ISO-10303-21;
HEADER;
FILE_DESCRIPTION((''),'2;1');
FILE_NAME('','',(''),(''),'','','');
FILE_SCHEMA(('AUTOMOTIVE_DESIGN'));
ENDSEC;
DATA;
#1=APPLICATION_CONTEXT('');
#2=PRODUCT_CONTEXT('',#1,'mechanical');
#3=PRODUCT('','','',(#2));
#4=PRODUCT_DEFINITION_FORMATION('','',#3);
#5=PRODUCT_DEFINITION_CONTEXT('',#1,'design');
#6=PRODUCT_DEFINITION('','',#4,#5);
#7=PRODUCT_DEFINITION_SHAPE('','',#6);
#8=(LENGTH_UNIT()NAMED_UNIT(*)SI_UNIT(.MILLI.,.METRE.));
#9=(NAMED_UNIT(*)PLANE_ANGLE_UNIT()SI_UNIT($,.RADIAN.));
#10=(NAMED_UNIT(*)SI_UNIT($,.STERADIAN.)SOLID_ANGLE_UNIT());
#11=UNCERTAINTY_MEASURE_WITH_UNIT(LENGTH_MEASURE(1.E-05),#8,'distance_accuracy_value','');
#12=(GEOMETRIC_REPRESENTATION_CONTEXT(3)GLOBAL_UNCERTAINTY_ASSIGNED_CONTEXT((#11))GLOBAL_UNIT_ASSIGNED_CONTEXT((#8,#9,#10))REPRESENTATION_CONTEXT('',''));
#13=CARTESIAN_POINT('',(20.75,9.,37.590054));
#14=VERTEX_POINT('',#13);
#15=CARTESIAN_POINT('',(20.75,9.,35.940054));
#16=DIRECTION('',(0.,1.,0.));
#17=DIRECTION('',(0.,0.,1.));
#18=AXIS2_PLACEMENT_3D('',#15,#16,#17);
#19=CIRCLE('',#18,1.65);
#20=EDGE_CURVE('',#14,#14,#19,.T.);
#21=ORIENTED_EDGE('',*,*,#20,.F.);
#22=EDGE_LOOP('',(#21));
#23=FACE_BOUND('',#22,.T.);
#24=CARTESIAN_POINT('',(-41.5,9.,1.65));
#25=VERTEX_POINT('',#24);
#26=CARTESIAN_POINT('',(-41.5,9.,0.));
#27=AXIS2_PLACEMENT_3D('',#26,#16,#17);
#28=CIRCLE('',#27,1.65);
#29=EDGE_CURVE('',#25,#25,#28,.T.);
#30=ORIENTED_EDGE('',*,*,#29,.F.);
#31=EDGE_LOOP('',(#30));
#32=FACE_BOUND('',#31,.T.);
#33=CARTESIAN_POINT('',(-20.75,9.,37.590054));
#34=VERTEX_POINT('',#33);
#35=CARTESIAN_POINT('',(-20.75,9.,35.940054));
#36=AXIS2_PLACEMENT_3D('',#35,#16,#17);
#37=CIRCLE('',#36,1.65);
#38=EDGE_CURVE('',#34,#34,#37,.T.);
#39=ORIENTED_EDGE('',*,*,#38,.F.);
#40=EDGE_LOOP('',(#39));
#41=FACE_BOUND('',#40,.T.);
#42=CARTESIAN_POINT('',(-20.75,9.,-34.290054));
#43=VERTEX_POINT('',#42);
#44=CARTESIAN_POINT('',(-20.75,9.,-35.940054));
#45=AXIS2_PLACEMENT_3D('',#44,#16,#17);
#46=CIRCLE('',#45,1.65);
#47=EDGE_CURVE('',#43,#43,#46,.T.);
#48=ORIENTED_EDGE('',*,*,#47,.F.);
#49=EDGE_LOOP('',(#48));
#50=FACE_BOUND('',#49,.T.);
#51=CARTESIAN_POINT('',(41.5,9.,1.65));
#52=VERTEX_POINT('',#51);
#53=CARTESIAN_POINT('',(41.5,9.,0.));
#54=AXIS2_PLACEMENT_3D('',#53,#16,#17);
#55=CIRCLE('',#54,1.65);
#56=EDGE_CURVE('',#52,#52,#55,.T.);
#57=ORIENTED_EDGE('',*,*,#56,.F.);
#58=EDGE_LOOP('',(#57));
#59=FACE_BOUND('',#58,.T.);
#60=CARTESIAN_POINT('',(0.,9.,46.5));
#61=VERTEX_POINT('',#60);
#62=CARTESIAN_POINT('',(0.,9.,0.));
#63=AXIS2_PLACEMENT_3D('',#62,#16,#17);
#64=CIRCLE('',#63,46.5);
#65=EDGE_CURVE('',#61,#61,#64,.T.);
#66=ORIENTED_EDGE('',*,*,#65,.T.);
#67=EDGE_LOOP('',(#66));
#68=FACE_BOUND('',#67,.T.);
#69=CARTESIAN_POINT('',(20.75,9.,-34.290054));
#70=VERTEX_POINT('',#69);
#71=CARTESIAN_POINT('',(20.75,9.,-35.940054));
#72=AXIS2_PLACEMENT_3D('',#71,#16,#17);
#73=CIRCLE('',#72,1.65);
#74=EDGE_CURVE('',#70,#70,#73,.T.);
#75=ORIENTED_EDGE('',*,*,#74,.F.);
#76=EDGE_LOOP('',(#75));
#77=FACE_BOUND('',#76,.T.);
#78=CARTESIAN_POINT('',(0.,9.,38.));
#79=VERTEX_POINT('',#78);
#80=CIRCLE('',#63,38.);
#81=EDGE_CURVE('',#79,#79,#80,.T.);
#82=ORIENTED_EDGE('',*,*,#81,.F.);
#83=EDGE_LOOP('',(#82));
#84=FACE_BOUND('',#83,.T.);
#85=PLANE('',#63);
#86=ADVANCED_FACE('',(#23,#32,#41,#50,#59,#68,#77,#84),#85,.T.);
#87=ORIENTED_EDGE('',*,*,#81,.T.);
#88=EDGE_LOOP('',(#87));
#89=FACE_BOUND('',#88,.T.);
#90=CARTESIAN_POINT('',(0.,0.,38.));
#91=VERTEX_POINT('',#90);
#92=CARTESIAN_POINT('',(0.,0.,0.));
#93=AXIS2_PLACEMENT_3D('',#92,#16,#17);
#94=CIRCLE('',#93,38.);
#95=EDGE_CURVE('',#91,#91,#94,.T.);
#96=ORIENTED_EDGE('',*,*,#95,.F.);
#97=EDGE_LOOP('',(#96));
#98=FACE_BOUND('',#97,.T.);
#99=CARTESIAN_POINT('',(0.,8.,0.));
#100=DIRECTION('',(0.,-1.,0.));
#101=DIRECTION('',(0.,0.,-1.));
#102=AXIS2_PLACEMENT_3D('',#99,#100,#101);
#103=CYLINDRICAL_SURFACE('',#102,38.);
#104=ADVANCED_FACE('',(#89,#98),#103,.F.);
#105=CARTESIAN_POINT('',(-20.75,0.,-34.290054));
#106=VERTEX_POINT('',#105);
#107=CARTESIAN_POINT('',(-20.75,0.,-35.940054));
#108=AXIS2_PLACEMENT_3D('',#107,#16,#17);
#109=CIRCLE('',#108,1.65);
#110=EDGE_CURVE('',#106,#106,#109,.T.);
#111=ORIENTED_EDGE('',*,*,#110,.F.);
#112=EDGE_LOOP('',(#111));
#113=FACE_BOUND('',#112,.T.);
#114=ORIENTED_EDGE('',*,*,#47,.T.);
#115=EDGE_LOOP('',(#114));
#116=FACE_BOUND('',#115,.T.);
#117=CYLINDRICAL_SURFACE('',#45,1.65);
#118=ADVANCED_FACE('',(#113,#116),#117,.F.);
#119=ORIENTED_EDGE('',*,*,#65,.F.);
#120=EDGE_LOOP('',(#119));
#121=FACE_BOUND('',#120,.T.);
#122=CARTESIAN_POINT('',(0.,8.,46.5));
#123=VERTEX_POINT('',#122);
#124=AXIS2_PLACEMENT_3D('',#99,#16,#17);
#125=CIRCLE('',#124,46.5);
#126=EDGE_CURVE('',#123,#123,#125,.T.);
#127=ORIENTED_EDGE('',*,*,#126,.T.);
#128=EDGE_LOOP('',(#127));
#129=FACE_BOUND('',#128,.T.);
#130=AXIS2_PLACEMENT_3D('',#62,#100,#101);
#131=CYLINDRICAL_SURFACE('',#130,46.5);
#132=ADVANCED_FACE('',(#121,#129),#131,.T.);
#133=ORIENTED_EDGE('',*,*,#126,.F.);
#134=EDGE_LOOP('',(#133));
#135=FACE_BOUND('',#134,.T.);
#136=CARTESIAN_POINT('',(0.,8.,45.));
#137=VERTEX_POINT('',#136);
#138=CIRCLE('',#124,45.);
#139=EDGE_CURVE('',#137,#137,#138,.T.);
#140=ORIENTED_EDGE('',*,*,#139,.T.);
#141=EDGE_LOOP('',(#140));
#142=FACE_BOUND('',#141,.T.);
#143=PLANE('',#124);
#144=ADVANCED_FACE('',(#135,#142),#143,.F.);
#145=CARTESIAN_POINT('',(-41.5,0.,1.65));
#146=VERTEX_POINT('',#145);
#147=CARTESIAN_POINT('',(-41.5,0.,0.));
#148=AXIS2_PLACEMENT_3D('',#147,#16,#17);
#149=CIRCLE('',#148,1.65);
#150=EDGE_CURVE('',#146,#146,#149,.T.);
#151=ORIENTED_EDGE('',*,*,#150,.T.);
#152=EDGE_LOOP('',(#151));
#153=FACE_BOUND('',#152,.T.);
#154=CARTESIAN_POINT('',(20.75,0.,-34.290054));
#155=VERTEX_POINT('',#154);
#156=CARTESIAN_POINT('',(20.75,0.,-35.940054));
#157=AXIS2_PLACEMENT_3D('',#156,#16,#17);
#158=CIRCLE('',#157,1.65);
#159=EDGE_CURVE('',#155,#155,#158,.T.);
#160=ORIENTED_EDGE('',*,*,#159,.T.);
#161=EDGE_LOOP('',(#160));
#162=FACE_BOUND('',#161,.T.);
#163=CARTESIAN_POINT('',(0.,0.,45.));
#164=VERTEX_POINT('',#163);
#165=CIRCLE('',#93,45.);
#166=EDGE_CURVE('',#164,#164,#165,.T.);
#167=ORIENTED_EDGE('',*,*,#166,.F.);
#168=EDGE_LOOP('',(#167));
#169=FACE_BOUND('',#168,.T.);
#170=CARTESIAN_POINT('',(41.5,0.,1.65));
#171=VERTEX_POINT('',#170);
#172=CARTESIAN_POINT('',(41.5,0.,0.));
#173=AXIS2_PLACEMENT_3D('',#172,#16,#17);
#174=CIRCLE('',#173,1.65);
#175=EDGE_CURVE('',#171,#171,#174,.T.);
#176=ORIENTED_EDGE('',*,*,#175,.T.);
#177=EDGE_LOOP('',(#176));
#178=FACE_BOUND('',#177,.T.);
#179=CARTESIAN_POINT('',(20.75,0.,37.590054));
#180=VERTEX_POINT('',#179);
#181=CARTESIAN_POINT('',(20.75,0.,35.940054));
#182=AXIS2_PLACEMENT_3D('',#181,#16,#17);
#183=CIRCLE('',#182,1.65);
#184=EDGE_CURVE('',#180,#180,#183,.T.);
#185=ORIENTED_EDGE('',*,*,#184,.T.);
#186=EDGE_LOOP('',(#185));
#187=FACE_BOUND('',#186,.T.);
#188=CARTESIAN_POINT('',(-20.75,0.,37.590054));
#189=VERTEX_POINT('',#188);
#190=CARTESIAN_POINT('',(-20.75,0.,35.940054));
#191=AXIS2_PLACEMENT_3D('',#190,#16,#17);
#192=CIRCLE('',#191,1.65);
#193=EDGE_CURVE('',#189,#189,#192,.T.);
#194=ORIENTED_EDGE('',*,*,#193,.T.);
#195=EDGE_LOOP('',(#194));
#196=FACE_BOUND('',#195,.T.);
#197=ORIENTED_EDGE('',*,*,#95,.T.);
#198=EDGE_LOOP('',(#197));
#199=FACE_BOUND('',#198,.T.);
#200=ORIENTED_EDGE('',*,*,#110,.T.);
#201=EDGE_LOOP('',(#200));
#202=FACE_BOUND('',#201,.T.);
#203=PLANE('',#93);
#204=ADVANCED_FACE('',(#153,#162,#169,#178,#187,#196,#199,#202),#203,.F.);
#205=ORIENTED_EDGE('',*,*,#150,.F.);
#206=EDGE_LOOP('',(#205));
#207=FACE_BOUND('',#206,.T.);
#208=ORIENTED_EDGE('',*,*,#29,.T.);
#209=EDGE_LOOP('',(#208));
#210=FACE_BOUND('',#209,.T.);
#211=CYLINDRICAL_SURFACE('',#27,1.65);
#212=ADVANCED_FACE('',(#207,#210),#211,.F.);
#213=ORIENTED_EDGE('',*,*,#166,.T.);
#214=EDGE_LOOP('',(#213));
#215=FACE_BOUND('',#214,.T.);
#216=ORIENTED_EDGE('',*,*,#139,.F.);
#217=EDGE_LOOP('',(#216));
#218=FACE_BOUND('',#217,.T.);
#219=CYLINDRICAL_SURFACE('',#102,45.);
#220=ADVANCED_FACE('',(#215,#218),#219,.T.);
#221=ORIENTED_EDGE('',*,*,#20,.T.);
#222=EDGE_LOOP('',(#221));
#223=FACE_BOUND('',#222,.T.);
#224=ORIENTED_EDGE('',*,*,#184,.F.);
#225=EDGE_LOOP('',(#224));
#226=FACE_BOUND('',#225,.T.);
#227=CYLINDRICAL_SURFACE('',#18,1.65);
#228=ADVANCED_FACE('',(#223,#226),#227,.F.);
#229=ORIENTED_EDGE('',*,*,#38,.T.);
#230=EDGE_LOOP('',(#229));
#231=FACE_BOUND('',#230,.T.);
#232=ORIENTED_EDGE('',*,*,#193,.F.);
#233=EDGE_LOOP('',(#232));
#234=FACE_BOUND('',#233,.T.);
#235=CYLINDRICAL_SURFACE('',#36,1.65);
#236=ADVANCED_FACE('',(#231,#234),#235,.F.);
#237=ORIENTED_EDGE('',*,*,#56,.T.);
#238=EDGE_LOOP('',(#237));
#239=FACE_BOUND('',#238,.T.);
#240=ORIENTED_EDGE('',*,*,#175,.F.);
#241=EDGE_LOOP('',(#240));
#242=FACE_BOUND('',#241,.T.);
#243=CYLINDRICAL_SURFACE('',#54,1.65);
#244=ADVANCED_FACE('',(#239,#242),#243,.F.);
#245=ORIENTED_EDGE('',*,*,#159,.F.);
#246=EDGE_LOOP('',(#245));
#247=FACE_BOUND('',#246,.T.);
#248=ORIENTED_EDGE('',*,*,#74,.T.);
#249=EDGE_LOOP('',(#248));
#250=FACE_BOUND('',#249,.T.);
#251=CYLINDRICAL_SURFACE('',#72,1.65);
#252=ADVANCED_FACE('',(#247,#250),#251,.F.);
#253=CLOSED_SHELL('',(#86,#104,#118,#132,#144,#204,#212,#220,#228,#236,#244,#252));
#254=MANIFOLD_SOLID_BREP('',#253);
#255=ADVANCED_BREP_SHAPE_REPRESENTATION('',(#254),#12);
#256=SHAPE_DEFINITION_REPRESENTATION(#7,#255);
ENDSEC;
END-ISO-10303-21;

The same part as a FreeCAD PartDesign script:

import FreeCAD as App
import Part
import Sketcher

V = App.Vector
Q = App.Units.Quantity

doc = App.newDocument("Part")
body = doc.addObject("PartDesign::Body", "Body")

sketch1 = doc.addObject("Sketcher::SketchObject", "Sketch")
body.addObject(sketch1)
sketch1.AttachmentSupport = (doc.XZ_Plane, [""])
sketch1.MapMode = "FlatFace"
sketch1.addGeometry(Part.Circle(V(0, 0, 0), V(0, 0, 1), 45), False)
sketch1.addGeometry(Part.Circle(V(0, 0, 0), V(0, 0, 1), 38), False)
sketch1.addConstraint(Sketcher.Constraint("Coincident", 0, 3, -1, 1))
sketch1.addConstraint(Sketcher.Constraint("Coincident", 1, 3, -1, 1))
sketch1.addConstraint(Sketcher.Constraint("Diameter", 0, Q("90 mm")))
sketch1.addConstraint(Sketcher.Constraint("Diameter", 1, Q("76 mm")))
pad1 = doc.addObject("PartDesign::Pad", "Pad")
body.addObject(pad1)
pad1.Profile = sketch1
pad1.Length = 8
pad1.Reversed = True

sketch2 = doc.addObject("Sketcher::SketchObject", "Sketch001")
body.addObject(sketch2)
sketch2.AttachmentSupport = (doc.XZ_Plane, [""])
sketch2.MapMode = "FlatFace"
sketch2.AttachmentOffset = App.Placement(V(0, 0, -8), App.Rotation())
sketch2.addGeometry(Part.Circle(V(0, 0, 0), V(0, 0, 1), 46.5), False)
sketch2.addGeometry(Part.Circle(V(0, 0, 0), V(0, 0, 1), 38), False)
sketch2.addConstraint(Sketcher.Constraint("Coincident", 0, 3, -1, 1))
sketch2.addConstraint(Sketcher.Constraint("Coincident", 1, 3, -1, 1))
sketch2.addConstraint(Sketcher.Constraint("Diameter", 0, Q("93 mm")))
sketch2.addConstraint(Sketcher.Constraint("Diameter", 1, Q("76 mm")))
pad2 = doc.addObject("PartDesign::Pad", "Pad001")
body.addObject(pad2)
pad2.Profile = sketch2
pad2.Length = 1
pad2.Reversed = True

sketch3 = doc.addObject("Sketcher::SketchObject", "Sketch002")
body.addObject(sketch3)
sketch3.AttachmentSupport = (doc.XZ_Plane, [""])
sketch3.MapMode = "FlatFace"
sketch3.AttachmentOffset = App.Placement(V(0, 0, -9), App.Rotation())
sketch3.addGeometry(Part.Circle(V(-20.75, -35.940054, 0), V(0, 0, 1), 1.65), False)
sketch3.addGeometry(Part.Circle(V(20.75, -35.940054, 0), V(0, 0, 1), 1.65), False)
sketch3.addGeometry(Part.Circle(V(41.5, 0, 0), V(0, 0, 1), 1.65), False)
sketch3.addGeometry(Part.Circle(V(20.75, 35.940054, 0), V(0, 0, 1), 1.65), False)
sketch3.addGeometry(Part.Circle(V(-20.75, 35.940054, 0), V(0, 0, 1), 1.65), False)
sketch3.addGeometry(Part.Circle(V(-41.5, 0, 0), V(0, 0, 1), 1.65), False)
sketch3.addConstraint(Sketcher.Constraint("Equal", 0, 1))
sketch3.addConstraint(Sketcher.Constraint("Equal", 1, 2))
sketch3.addConstraint(Sketcher.Constraint("Equal", 2, 3))
sketch3.addConstraint(Sketcher.Constraint("Equal", 3, 4))
sketch3.addConstraint(Sketcher.Constraint("Equal", 4, 5))
sketch3.addConstraint(Sketcher.Constraint("Symmetric", 0, 3, 3, 3, -1, 1))
sketch3.addConstraint(Sketcher.Constraint("Symmetric", 1, 3, 4, 3, -1, 1))
sketch3.addConstraint(Sketcher.Constraint("Symmetric", 2, 3, 5, 3, -1, 1))
sketch3.addConstraint(Sketcher.Constraint("Symmetric", 0, 3, 1, 3, -2))
sketch3.addConstraint(Sketcher.Constraint("PointOnObject", 2, 3, -1))
sketch3.addConstraint(Sketcher.Constraint("Diameter", 0, Q("3.3 mm")))
sketch3.addConstraint(Sketcher.Constraint("DistanceX", 5, 3, 2, 3, Q("83 mm")))
sketch3.addConstraint(Sketcher.Constraint("DistanceX", 0, 3, 1, 3, Q("41.5 mm")))
sketch3.addConstraint(Sketcher.Constraint("DistanceY", 1, 3, 3, 3, Q("71.880109 mm")))
doc.recompute()
hole = doc.addObject("PartDesign::Hole", "Hole")
body.addObject(hole)
hole.Profile = sketch3
hole.ThreadType = "None"
hole.Diameter = 3.3
hole.DepthType = "ThroughAll"
hole.Reversed = True

doc.recompute()
